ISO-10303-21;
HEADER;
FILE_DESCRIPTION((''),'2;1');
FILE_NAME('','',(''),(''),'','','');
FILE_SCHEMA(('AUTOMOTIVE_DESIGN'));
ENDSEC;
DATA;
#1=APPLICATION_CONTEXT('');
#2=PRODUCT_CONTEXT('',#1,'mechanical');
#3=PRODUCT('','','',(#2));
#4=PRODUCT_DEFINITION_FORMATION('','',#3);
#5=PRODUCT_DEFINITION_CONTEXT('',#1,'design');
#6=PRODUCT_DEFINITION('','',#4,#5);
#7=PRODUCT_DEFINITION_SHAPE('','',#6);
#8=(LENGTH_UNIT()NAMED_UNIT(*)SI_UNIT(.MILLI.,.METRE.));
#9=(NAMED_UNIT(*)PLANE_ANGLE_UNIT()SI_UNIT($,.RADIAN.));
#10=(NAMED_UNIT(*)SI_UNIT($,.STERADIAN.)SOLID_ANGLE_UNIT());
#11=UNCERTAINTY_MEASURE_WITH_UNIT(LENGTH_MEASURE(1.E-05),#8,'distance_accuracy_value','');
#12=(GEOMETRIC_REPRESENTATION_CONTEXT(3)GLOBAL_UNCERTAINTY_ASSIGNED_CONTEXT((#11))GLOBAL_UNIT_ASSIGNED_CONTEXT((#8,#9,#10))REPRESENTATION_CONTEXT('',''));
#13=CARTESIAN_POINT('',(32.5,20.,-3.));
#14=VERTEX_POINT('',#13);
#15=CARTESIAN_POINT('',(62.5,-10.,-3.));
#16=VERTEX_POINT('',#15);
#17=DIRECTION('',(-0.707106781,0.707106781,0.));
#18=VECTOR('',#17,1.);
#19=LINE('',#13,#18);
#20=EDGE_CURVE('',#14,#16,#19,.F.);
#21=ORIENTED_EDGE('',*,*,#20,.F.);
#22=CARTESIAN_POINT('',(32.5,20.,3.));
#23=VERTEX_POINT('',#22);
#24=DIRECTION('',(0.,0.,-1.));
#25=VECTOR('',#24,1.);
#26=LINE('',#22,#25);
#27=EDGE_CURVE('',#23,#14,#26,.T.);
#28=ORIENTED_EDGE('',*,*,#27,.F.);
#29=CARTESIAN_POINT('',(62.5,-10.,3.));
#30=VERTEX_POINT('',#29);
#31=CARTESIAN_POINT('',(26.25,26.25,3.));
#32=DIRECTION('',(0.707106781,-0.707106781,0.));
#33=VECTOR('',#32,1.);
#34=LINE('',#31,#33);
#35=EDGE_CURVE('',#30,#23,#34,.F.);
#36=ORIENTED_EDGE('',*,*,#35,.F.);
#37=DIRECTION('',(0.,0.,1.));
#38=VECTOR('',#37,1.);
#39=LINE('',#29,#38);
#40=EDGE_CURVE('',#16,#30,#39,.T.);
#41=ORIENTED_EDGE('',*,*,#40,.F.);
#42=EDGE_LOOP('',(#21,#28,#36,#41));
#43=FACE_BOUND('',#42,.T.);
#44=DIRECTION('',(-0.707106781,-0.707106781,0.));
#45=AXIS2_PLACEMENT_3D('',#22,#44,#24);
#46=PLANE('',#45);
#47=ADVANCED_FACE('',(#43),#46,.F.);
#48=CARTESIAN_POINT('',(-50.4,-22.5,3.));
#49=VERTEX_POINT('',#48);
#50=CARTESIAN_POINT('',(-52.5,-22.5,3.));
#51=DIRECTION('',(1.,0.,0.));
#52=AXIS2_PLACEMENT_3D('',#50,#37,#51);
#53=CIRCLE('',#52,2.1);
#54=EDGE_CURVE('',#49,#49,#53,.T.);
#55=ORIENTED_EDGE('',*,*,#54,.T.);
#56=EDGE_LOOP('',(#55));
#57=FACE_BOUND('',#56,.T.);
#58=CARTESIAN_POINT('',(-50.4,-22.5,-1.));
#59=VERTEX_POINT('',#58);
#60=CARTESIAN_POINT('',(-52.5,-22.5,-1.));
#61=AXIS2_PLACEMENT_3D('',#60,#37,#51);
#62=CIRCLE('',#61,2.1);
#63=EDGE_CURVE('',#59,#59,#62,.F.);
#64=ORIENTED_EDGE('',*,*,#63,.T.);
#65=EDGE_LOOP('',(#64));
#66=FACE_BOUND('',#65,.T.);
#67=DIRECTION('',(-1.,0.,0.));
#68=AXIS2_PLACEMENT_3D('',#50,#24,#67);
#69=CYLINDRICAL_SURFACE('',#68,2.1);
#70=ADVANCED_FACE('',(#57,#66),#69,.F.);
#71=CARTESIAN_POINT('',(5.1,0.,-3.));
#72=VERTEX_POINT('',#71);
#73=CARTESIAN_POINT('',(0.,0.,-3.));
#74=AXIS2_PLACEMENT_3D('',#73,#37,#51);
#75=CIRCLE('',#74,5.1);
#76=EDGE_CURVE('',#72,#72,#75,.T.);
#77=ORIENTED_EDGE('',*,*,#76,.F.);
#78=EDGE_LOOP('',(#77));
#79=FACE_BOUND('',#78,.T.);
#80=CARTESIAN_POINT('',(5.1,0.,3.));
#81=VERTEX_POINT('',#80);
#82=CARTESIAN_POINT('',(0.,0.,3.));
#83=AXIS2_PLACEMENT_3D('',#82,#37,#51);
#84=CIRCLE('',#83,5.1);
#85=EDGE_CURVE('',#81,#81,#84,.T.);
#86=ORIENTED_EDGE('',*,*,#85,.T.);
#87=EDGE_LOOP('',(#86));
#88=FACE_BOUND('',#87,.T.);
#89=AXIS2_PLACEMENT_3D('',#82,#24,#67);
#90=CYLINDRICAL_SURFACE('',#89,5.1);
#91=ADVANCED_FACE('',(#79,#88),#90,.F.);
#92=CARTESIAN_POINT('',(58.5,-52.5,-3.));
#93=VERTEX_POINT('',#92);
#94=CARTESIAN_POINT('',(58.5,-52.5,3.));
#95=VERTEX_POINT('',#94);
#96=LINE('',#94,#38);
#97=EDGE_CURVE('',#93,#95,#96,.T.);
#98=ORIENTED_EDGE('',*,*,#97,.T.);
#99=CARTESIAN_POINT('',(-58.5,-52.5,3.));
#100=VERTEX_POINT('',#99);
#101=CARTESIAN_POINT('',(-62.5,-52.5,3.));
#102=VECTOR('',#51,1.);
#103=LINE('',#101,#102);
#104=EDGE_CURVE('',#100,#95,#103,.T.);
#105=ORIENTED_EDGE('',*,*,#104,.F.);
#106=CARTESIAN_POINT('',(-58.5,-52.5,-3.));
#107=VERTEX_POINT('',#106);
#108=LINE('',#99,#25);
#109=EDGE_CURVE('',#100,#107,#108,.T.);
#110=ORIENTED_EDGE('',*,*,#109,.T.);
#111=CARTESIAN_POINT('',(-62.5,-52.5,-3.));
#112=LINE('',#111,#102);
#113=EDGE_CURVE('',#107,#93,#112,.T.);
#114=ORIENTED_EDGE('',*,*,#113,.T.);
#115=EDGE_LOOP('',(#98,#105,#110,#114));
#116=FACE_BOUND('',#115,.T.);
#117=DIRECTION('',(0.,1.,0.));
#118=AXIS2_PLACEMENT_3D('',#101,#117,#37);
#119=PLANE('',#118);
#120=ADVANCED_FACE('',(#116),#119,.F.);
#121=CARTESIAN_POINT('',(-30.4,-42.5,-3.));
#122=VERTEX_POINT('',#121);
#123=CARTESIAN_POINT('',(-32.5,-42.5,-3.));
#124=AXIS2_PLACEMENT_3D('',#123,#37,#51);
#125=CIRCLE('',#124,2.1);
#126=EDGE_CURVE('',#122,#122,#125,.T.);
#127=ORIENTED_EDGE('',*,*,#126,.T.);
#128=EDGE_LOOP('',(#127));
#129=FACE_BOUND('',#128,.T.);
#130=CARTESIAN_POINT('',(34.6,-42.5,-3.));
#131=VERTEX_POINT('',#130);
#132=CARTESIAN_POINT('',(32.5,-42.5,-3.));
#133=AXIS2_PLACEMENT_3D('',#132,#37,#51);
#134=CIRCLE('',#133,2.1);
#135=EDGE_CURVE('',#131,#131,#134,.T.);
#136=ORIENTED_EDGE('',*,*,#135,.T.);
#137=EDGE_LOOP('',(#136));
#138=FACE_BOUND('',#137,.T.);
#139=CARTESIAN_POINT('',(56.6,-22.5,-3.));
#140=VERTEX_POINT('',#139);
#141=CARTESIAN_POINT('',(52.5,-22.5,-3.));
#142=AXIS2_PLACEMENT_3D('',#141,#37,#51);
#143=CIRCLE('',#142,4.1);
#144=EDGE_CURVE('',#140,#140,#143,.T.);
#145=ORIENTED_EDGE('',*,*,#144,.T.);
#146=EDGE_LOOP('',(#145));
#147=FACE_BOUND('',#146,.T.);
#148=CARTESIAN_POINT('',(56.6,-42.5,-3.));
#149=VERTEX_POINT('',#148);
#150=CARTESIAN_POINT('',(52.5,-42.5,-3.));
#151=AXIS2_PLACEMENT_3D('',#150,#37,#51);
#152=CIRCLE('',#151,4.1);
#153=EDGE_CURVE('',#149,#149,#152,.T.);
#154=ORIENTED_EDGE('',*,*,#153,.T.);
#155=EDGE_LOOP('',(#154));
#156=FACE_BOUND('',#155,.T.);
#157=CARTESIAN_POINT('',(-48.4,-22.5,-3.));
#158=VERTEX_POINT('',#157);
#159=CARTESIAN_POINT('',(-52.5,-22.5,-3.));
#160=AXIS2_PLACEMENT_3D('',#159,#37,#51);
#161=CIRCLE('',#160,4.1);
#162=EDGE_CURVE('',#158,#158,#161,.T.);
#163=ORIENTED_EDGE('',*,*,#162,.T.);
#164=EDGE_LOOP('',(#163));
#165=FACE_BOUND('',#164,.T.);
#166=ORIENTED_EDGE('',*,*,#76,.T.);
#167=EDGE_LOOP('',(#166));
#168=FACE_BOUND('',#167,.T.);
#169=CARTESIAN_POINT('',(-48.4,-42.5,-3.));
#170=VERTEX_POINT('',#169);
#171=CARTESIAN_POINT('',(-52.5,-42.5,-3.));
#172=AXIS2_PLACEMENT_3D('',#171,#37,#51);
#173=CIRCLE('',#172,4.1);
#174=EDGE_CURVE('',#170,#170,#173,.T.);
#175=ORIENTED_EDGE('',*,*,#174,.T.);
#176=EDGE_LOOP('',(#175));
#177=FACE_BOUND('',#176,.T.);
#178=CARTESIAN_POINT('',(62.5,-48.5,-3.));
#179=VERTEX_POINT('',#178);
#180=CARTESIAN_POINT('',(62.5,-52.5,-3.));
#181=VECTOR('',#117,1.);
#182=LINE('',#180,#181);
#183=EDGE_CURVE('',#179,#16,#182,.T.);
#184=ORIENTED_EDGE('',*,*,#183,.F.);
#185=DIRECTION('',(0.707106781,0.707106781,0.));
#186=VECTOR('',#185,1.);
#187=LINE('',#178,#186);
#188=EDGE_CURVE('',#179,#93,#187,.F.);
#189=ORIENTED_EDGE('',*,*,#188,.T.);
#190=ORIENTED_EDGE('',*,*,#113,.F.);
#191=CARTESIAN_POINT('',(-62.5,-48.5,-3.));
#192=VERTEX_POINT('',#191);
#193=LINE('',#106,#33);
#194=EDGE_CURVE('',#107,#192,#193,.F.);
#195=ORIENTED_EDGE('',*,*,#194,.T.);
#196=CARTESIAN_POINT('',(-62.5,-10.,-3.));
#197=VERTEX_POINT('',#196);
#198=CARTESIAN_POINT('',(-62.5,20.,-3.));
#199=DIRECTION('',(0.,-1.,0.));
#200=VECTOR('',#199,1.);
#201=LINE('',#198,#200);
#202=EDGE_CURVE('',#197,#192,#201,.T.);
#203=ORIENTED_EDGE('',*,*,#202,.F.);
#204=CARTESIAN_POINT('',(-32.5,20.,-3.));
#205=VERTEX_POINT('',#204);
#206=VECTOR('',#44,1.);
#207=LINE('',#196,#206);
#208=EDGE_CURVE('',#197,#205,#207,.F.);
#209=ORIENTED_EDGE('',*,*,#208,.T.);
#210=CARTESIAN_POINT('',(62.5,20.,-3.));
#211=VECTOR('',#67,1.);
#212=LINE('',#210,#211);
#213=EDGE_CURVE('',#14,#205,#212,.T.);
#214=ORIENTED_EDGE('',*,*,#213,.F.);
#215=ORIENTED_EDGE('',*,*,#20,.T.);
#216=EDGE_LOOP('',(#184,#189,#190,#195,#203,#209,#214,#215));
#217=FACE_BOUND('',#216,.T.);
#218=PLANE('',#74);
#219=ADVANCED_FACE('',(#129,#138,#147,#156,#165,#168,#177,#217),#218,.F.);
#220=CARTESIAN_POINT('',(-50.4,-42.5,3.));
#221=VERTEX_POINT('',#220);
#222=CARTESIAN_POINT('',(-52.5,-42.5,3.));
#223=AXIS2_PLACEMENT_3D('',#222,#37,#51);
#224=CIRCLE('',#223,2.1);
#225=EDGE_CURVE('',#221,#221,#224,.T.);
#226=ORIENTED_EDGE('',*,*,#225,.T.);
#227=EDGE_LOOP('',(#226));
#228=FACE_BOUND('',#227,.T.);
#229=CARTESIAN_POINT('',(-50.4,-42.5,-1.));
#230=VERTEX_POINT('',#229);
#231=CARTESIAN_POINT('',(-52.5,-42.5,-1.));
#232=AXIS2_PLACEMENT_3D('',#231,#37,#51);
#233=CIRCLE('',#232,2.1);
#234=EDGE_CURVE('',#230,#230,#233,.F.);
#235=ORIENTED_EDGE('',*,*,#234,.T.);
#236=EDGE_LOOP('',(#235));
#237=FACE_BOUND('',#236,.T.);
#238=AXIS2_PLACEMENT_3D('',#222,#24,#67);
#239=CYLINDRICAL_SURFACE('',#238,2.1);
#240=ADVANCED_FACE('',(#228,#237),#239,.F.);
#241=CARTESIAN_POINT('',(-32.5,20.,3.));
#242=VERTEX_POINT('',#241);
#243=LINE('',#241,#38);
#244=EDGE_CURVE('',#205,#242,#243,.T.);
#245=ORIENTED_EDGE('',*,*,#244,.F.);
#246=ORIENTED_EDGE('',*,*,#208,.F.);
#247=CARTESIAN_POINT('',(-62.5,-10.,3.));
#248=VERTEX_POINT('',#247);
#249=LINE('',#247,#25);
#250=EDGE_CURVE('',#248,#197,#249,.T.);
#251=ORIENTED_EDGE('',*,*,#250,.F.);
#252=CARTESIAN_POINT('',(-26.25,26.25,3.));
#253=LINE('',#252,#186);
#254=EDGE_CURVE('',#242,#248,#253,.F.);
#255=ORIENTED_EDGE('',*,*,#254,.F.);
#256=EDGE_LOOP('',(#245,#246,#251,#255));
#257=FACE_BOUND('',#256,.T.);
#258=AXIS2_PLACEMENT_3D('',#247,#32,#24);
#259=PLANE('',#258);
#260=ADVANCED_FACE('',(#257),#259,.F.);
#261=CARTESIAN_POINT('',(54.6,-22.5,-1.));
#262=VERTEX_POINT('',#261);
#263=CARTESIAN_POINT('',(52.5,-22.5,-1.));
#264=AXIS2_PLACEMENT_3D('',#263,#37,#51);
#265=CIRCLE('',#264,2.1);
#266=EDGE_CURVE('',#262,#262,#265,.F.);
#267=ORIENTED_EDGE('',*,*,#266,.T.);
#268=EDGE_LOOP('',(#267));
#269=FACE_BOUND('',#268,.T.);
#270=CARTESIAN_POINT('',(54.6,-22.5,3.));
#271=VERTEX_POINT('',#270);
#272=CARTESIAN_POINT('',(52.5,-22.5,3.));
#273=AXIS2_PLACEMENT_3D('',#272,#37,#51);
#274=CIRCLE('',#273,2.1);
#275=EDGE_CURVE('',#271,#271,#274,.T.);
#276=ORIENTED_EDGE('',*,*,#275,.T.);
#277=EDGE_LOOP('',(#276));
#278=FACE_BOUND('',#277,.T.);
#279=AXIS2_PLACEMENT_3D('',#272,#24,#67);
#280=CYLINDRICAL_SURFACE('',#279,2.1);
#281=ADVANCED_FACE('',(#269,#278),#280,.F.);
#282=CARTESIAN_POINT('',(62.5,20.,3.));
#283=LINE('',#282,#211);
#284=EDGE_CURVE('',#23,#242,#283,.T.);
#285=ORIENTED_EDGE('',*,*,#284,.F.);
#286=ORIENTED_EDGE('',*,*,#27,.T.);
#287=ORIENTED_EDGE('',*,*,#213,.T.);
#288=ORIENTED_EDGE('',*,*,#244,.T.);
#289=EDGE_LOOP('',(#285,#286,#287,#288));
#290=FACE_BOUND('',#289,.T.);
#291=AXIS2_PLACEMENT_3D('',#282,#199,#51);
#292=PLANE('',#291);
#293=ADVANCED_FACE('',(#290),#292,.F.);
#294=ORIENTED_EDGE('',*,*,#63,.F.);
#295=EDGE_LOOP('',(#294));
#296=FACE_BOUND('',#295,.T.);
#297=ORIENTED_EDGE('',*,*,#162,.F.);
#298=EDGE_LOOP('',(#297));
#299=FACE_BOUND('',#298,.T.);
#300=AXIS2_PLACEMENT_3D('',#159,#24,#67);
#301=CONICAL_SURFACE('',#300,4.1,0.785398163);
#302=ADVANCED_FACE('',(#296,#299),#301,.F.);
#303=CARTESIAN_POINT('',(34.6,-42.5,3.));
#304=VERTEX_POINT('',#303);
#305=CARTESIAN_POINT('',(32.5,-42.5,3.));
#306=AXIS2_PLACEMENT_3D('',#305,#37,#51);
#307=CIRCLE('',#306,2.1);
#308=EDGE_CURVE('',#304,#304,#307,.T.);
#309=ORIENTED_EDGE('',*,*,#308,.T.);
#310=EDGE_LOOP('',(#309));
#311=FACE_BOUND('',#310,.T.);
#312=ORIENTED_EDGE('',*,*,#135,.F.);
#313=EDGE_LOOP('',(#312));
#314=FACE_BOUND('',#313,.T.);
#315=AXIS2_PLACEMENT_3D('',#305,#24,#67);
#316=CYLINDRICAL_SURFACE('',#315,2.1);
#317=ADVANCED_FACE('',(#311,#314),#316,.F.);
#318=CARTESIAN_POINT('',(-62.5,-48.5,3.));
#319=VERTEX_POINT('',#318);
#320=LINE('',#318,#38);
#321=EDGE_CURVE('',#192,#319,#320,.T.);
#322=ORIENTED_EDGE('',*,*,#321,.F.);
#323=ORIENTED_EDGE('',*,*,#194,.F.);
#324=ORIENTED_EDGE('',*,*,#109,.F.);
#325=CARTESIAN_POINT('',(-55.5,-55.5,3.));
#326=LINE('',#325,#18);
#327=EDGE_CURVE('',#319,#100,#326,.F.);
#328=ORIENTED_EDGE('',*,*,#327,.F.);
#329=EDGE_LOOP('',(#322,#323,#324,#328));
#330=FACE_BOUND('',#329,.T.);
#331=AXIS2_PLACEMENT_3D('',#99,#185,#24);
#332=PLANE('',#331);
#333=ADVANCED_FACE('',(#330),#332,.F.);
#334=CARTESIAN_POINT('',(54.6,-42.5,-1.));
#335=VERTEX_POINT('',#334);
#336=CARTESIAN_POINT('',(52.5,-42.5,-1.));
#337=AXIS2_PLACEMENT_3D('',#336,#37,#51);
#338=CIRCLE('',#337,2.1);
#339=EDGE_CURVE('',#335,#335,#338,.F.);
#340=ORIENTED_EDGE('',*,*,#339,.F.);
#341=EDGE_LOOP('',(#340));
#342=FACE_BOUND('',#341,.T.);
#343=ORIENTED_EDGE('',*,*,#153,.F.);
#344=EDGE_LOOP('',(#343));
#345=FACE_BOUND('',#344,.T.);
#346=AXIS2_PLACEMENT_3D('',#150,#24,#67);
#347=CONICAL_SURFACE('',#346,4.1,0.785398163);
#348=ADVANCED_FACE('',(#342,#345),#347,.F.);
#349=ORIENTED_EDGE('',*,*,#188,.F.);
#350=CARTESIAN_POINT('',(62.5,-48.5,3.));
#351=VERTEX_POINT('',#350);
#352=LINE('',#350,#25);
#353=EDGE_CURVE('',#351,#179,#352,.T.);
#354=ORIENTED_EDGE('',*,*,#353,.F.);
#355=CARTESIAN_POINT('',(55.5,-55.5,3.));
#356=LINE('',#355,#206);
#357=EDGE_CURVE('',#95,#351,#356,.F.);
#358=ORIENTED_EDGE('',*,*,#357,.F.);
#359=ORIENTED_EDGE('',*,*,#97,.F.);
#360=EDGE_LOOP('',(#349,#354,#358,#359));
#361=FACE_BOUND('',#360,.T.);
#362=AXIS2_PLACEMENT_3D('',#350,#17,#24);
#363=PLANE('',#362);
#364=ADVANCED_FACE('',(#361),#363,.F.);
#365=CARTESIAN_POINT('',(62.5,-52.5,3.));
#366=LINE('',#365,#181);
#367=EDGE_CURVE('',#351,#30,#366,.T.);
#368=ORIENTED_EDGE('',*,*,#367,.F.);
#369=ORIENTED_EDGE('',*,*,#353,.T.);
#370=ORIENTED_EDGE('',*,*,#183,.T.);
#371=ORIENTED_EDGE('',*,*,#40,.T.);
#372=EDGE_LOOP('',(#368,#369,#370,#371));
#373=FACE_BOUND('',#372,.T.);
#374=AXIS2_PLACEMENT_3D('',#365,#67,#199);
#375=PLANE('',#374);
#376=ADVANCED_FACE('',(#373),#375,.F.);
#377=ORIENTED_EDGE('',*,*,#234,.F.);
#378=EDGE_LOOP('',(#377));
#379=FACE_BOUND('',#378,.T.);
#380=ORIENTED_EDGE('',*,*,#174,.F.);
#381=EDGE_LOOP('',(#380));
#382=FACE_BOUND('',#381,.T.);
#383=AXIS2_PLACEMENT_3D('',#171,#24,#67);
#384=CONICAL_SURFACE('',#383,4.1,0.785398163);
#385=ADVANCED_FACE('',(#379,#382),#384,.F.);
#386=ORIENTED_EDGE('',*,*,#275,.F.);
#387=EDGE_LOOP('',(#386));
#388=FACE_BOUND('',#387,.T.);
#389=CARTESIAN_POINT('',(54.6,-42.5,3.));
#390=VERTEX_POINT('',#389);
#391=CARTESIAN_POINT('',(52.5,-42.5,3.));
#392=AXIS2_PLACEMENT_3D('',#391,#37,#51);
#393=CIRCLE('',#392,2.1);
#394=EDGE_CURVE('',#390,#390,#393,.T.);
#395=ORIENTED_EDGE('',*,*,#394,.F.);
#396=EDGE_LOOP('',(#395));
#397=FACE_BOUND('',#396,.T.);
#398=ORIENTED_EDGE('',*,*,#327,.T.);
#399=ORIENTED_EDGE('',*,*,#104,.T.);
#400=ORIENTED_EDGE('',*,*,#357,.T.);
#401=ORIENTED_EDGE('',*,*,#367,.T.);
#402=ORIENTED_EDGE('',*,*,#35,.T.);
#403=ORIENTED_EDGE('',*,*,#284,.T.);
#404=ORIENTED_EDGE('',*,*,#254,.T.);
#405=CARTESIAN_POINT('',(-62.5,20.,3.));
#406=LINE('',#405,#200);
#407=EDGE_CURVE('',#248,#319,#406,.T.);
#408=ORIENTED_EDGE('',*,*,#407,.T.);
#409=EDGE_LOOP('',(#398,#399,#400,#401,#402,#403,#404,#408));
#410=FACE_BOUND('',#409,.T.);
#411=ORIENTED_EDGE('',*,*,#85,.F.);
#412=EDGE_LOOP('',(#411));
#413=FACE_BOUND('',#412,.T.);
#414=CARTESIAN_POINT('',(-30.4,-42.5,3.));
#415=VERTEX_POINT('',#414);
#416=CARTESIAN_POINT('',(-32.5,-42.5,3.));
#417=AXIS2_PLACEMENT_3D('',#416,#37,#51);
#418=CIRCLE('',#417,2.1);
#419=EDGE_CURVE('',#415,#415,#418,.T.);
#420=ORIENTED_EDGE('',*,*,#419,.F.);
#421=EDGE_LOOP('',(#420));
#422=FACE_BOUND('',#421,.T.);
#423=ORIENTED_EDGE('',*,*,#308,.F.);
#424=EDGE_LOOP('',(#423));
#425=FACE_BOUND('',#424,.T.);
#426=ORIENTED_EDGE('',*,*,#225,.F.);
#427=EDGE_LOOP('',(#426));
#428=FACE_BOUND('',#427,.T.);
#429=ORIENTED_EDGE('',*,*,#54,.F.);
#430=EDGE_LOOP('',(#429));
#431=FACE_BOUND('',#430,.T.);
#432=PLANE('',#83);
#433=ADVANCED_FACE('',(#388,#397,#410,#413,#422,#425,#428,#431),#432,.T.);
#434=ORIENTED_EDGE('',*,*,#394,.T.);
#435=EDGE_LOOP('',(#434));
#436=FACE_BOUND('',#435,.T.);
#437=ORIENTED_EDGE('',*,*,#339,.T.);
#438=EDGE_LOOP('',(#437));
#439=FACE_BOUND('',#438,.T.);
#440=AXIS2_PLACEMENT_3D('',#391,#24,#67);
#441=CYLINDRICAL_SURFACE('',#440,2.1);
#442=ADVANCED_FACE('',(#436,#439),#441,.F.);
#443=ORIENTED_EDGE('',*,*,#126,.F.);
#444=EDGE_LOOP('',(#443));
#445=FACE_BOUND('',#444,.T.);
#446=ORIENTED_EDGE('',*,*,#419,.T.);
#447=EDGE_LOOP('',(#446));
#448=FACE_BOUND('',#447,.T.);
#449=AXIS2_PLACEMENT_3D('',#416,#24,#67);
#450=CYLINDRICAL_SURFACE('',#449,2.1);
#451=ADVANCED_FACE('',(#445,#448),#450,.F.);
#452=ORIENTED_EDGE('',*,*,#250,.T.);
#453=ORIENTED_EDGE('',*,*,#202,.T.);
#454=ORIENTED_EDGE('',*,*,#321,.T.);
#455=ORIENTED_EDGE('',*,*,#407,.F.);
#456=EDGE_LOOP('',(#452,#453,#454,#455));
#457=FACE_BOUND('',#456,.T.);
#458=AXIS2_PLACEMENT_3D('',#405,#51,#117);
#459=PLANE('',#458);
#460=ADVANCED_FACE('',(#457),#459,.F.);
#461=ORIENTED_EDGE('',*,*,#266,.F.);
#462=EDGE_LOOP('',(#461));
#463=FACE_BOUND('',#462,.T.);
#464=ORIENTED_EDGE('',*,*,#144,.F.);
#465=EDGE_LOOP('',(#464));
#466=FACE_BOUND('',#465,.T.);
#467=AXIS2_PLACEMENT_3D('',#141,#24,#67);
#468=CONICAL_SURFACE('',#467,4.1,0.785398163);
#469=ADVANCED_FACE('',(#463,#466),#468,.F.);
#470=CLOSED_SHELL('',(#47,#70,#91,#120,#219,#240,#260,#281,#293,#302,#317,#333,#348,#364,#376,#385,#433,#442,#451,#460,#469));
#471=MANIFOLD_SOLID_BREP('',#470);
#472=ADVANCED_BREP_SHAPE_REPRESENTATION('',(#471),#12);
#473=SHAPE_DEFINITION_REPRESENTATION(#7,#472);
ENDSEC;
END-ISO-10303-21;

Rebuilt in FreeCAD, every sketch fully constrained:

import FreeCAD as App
import Part
import Sketcher


def edges_at(feature, points):
    """Names of the edges that pass closest to the given points."""
    edges = feature.Shape.Edges
    near = lambda p: min(range(len(edges)), key=lambda i: edges[i].distToShape(Part.Vertex(*p))[0])
    return sorted({f"Edge{near(p) + 1}" for p in points})


def add_polygon(sketch, points):
    """Adds a closed chain of lines whose ends are joined by coincident constraints."""
    first, n = sketch.GeometryCount, len(points)
    for a, b in zip(points, points[1:] + points[:1]):
        sketch.addGeometry(Part.LineSegment(App.Vector(*a, 0), App.Vector(*b, 0)), False)
    for i in range(n):
        sketch.addConstraint(Sketcher.Constraint("Coincident", first + i, 2, first + (i + 1) % n, 1))

doc = App.newDocument("Part")
body = doc.addObject("PartDesign::Body", "Body")

sketch1 = body.newObject("Sketcher::SketchObject", "Sketch")
sketch1.AttachmentSupport = (doc.getObject("XY_Plane"), [""])
sketch1.MapMode = "FlatFace"
add_polygon(sketch1, [(-62.5, 20), (-62.5, -52.5), (62.5, -52.5), (62.5, 20)])
sketch1.addGeometry(Part.Circle(App.Vector(-52.5, -42.5, 0), App.Vector(0, 0, 1), 2.1), False)
sketch1.addGeometry(Part.Circle(App.Vector(-32.5, -42.5, 0), App.Vector(0, 0, 1), 2.1), False)
sketch1.addGeometry(Part.Circle(App.Vector(-52.5, -22.5, 0), App.Vector(0, 0, 1), 2.1), False)
sketch1.addGeometry(Part.Circle(App.Vector(32.5, -42.5, 0), App.Vector(0, 0, 1), 2.1), False)
sketch1.addGeometry(Part.Circle(App.Vector(52.5, -42.5, 0), App.Vector(0, 0, 1), 2.1), False)
sketch1.addGeometry(Part.Circle(App.Vector(52.5, -22.5, 0), App.Vector(0, 0, 1), 2.1), False)
sketch1.addGeometry(Part.Circle(App.Vector(0, 0, 0), App.Vector(0, 0, 1), 5.1), False)
sketch1.addConstraint(Sketcher.Constraint("Vertical", 0))
sketch1.addConstraint(Sketcher.Constraint("Horizontal", 1))
sketch1.addConstraint(Sketcher.Constraint("Vertical", 2))
sketch1.addConstraint(Sketcher.Constraint("Horizontal", 3))
sketch1.addConstraint(Sketcher.Constraint("Coincident", 10, 3, -1, 1))
sketch1.addConstraint(Sketcher.Constraint("Equal", 4, 5))
sketch1.addConstraint(Sketcher.Constraint("Equal", 5, 6))
sketch1.addConstraint(Sketcher.Constraint("Equal", 6, 7))
sketch1.addConstraint(Sketcher.Constraint("Equal", 7, 8))
sketch1.addConstraint(Sketcher.Constraint("Equal", 8, 9))
sketch1.addConstraint(Sketcher.Constraint("Symmetric", 5, 3, 7, 3, -2))
sketch1.addConstraint(Sketcher.Constraint("Symmetric", 4, 3, 8, 3, -2))
sketch1.addConstraint(Sketcher.Constraint("Symmetric", 6, 3, 9, 3, -2))
sketch1.addConstraint(Sketcher.Constraint("Horizontal", 4, 3, 5, 3))
sketch1.addConstraint(Sketcher.Constraint("Vertical", 4, 3, 6, 3))
sketch1.addConstraint(Sketcher.Constraint("Diameter", 4, 4.2))
sketch1.addConstraint(Sketcher.Constraint("Diameter", 10, 10.2))
sketch1.addConstraint(Sketcher.Constraint("DistanceX", 1, 1, 1, 2, 125.0))
sketch1.addConstraint(Sketcher.Constraint("DistanceY", 0, 2, 0, 1, 72.5))
sketch1.addConstraint(Sketcher.Constraint("DistanceY", -1, 1, 2, 2, 20.0))
sketch1.addConstraint(Sketcher.Constraint("DistanceX", 4, 3, 5, 3, 20.0))
sketch1.addConstraint(Sketcher.Constraint("DistanceY", 4, 3, 6, 3, 20.0))
sketch1.addConstraint(Sketcher.Constraint("DistanceX", 5, 3, 7, 3, 65.0))
sketch1.addConstraint(Sketcher.Constraint("DistanceX", 0, 2, 4, 3, 10.0))
sketch1.addConstraint(Sketcher.Constraint("DistanceY", 0, 2, 4, 3, 10.0))
pad1 = body.newObject("PartDesign::Pad", "Pad")
pad1.Profile = sketch1
pad1.Length = 6
pad1.Midplane = True
doc.recompute()

chamfer = body.newObject("PartDesign::Chamfer", "Chamfer")
chamfer.Base = (pad1, edges_at(pad1, [(62.5, 20, 0), (-62.5, 20, 0)]))
chamfer.Size = 30
doc.recompute()

chamfer2 = body.newObject("PartDesign::Chamfer", "Chamfer001")
chamfer2.Base = (chamfer, edges_at(chamfer, [(62.5, -52.5, 0), (-62.5, -52.5, 0)]))
chamfer2.Size = 4
doc.recompute()

chamfer3 = body.newObject("PartDesign::Chamfer", "Chamfer002")
chamfer3.Base = (chamfer2, edges_at(chamfer2, [
    (-54.6, -42.5, -3),
    (50.4, -42.5, -3),
    (-54.6, -22.5, -3),
    (50.4, -22.5, -3),
]))
chamfer3.Size = 2

doc.recompute()
